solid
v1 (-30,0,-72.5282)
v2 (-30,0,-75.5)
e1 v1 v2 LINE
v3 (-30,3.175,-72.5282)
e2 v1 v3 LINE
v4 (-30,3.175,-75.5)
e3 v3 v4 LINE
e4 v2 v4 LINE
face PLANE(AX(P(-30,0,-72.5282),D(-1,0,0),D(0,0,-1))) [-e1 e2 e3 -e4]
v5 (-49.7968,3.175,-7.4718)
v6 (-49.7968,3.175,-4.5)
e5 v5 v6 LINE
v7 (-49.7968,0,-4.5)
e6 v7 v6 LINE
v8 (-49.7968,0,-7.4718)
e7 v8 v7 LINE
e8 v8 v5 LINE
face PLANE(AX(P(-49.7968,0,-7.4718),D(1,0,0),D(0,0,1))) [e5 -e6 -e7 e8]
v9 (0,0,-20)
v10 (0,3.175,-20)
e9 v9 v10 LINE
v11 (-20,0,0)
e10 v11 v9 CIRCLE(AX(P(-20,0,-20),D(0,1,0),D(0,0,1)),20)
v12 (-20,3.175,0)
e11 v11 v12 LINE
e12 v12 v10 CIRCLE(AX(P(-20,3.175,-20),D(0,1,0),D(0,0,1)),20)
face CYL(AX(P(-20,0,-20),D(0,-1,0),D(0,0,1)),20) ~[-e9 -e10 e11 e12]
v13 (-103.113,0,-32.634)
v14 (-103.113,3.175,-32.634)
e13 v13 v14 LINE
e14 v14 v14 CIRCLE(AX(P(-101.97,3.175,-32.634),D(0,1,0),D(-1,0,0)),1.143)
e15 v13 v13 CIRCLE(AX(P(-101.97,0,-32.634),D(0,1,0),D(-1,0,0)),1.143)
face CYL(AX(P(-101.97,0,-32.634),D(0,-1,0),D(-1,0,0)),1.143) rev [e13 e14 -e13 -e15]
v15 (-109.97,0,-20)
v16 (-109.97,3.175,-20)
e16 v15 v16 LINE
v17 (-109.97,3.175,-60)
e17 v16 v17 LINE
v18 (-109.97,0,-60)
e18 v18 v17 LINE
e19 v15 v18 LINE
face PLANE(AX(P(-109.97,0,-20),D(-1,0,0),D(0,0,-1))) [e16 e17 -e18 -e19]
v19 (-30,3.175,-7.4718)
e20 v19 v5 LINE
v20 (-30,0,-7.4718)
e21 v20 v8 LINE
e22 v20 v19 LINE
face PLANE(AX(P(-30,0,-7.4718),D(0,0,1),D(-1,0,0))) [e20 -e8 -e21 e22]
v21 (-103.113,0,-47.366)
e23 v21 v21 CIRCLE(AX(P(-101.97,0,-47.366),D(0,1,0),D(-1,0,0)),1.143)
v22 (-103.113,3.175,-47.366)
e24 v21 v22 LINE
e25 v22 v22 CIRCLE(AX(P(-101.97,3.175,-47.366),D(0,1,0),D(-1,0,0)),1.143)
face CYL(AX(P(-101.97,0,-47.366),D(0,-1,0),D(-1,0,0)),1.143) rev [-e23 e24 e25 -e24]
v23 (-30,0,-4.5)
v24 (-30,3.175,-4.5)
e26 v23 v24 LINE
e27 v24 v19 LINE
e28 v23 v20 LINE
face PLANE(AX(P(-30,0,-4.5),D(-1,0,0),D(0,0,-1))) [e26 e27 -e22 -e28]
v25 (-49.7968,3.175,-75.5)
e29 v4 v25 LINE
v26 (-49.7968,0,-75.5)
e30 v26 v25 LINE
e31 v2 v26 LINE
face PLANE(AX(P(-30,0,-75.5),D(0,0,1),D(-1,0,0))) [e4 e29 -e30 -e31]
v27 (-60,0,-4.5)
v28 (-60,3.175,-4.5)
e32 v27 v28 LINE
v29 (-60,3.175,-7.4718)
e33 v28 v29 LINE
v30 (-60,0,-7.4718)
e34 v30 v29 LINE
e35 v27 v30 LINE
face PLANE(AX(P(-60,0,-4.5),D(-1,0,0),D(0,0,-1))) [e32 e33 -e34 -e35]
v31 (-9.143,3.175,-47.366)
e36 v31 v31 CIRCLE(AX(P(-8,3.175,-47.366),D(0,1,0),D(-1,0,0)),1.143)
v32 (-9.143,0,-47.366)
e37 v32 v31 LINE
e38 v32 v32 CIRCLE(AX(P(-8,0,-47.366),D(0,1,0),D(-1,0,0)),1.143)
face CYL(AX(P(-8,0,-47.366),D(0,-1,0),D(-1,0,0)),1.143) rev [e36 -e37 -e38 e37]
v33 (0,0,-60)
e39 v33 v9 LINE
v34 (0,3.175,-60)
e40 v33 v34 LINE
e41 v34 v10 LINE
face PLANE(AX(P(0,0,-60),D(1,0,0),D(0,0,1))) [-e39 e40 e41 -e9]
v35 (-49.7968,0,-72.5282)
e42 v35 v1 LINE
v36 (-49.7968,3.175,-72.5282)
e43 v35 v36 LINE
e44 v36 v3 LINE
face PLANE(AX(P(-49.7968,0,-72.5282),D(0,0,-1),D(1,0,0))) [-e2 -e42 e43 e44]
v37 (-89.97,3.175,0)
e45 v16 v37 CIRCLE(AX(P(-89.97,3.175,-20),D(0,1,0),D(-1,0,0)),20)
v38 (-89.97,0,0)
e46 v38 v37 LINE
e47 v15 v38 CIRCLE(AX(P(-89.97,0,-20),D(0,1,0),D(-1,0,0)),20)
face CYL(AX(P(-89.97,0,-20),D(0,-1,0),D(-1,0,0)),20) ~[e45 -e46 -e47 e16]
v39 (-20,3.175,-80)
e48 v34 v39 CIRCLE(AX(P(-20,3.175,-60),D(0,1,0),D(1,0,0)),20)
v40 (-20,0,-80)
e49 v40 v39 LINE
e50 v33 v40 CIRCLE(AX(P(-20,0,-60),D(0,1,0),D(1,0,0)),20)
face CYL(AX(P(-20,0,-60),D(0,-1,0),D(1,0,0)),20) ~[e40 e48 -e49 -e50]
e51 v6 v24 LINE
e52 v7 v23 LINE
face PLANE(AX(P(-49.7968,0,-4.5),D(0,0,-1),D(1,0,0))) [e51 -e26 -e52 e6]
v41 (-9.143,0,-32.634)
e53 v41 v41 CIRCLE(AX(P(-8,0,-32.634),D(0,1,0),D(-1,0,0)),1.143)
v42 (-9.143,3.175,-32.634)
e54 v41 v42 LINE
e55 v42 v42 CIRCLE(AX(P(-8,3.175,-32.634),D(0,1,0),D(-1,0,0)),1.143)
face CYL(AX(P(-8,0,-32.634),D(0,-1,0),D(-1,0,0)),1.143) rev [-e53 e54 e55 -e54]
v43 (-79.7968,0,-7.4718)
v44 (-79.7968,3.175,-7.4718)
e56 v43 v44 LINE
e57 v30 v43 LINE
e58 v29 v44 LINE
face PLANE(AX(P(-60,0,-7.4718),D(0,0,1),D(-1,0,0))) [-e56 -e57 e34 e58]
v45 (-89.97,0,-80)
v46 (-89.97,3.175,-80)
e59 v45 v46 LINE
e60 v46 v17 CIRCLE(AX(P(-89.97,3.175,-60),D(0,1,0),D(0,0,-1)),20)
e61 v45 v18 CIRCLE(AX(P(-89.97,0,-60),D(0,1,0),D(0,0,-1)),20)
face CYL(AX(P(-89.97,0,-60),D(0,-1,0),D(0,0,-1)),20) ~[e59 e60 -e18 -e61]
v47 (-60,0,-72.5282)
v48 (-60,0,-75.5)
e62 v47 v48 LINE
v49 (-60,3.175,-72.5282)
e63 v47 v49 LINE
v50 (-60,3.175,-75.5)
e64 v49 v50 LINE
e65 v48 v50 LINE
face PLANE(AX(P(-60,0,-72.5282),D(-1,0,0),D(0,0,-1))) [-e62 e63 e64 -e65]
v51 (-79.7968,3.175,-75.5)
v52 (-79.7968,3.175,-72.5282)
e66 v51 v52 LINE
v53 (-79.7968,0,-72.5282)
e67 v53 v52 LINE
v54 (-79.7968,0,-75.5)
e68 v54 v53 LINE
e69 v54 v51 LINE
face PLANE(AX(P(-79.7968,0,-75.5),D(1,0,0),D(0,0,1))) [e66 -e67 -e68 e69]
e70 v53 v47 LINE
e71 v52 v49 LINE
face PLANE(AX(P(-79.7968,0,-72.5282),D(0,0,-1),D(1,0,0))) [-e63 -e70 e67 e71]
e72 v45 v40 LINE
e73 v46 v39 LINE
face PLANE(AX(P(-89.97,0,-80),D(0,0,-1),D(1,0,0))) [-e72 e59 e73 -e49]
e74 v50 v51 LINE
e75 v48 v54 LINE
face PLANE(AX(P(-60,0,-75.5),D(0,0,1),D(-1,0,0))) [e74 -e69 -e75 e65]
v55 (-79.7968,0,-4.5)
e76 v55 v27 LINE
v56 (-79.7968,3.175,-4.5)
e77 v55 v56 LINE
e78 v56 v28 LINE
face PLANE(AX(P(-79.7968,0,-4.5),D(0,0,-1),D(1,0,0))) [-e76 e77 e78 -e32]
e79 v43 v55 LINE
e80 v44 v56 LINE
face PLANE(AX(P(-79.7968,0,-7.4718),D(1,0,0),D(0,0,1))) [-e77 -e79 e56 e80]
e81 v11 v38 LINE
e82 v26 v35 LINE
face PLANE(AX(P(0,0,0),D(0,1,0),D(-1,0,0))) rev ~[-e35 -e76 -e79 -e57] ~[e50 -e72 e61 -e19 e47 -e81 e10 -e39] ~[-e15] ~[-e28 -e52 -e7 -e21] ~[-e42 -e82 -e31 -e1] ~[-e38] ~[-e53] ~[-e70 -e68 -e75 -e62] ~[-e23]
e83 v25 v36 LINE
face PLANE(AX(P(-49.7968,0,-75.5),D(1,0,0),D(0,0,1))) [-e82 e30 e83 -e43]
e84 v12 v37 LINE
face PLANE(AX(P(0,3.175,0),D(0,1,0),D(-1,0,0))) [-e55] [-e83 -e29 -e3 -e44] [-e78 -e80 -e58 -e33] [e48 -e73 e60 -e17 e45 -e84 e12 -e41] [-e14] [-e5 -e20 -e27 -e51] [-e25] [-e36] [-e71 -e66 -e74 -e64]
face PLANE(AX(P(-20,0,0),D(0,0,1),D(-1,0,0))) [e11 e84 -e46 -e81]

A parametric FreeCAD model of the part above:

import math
import FreeCAD as App
import Part
import Sketcher
Q = App.Units.Quantity


def add_polygon(sketch, points):
    """Adds a closed chain of lines whose ends are joined by coincident constraints."""
    first, n = sketch.GeometryCount, len(points)
    for a, b in zip(points, points[1:] + points[:1]):
        sketch.addGeometry(Part.LineSegment(App.Vector(*a, 0), App.Vector(*b, 0)), False)
    for i in range(n):
        sketch.addConstraint(Sketcher.Constraint("Coincident", first + i, 2, first + (i + 1) % n, 1))

doc = App.newDocument("Part")
params = doc.addObject("Spreadsheet::Sheet", "Params")
for row, (alias, value) in enumerate([
    ("sketch1_diameter", "0.09 in"),
    ("sketch1_height", "0.117 in"),
    ("pad1_length", "0.125 in"),
], start=1):
    params.set(f"A{row}", alias)
    params.set(f"B{row}", "=" + value)
    params.setAlias(f"B{row}", alias)

body = doc.addObject("PartDesign::Body", "Body")

# Sketch on XZ plane
sketch1 = doc.addObject("Sketcher::SketchObject", "Sketch")
body.addObject(sketch1)
sketch1.AttachmentSupport = (doc.XZ_Plane, [""])
sketch1.MapMode = "FlatFace"
sketch1.addGeometry(Part.LineSegment(App.Vector(-89.97, 0, 0), App.Vector(-20, 0, 0)), False)  # 0
sketch1.addGeometry(Part.ArcOfCircle(Part.Circle(App.Vector(-20, -20, 0), App.Vector(0, 0, 1), 20), math.radians(0), math.radians(90)), False)  # 1
sketch1.addGeometry(Part.LineSegment(App.Vector(0, -20, 0), App.Vector(0, -60, 0)), False)  # 2
sketch1.addGeometry(Part.ArcOfCircle(Part.Circle(App.Vector(-20, -60, 0), App.Vector(0, 0, 1), 20), math.radians(-90), math.radians(0)), False)  # 3
sketch1.addGeometry(Part.LineSegment(App.Vector(-20, -80, 0), App.Vector(-89.97, -80, 0)), False)  # 4
sketch1.addGeometry(Part.ArcOfCircle(Part.Circle(App.Vector(-89.97, -60, 0), App.Vector(0, 0, 1), 20), math.radians(180), math.radians(270)), False)  # 5
sketch1.addGeometry(Part.LineSegment(App.Vector(-109.97, -60, 0), App.Vector(-109.97, -20, 0)), False)  # 6
sketch1.addGeometry(Part.ArcOfCircle(Part.Circle(App.Vector(-89.97, -20, 0), App.Vector(0, 0, 1), 20), math.radians(90), math.radians(180)), False)  # 7
add_polygon(sketch1, [(-30, -72.5282), (-49.7968, -72.5282), (-49.7968, -75.5), (-30, -75.5)])  # lines 8-11
sketch1.addGeometry(Part.Circle(App.Vector(-8, -47.366, 0), App.Vector(0, 0, 1), 1.143), False)  # 12
add_polygon(sketch1, [(-60, -72.5282), (-79.7968, -72.5282), (-79.7968, -75.5), (-60, -75.5)])  # lines 13-16
sketch1.addGeometry(Part.Circle(App.Vector(-101.97, -47.366, 0), App.Vector(0, 0, 1), 1.143), False)  # 17
sketch1.addGeometry(Part.Circle(App.Vector(-8, -32.634, 0), App.Vector(0, 0, 1), 1.143), False)  # 18
add_polygon(sketch1, [(-30, -4.5), (-49.7968, -4.5), (-49.7968, -7.4718), (-30, -7.4718)])  # lines 19-22
sketch1.addGeometry(Part.Circle(App.Vector(-101.97, -32.634, 0), App.Vector(0, 0, 1), 1.143), False)  # 23
add_polygon(sketch1, [(-79.7968, -7.4718), (-60, -7.4718), (-60, -4.5), (-79.7968, -4.5)])  # lines 24-27
sketch1.addConstraint([
    Sketcher.Constraint("Tangent", 0, 2, 1, 2),
    Sketcher.Constraint("Tangent", 1, 1, 2, 1),
    Sketcher.Constraint("Tangent", 2, 2, 3, 2),
    Sketcher.Constraint("Tangent", 3, 1, 4, 1),
    Sketcher.Constraint("Tangent", 4, 2, 5, 2),
    Sketcher.Constraint("Tangent", 5, 1, 6, 1),
    Sketcher.Constraint("Tangent", 6, 2, 7, 2),
    Sketcher.Constraint("Tangent", 7, 1, 0, 1),
    Sketcher.Constraint("Horizontal", 0),
    Sketcher.Constraint("Vertical", 2),
    Sketcher.Constraint("Horizontal", 4),
    Sketcher.Constraint("Vertical", 6),
    Sketcher.Constraint("Horizontal", 8),
    Sketcher.Constraint("Vertical", 9),
    Sketcher.Constraint("Horizontal", 10),
    Sketcher.Constraint("Vertical", 11),
    Sketcher.Constraint("Horizontal", 13),
    Sketcher.Constraint("Vertical", 14),
    Sketcher.Constraint("Horizontal", 15),
    Sketcher.Constraint("Vertical", 16),
    Sketcher.Constraint("Horizontal", 19),
    Sketcher.Constraint("Vertical", 20),
    Sketcher.Constraint("Horizontal", 21),
    Sketcher.Constraint("Vertical", 22),
    Sketcher.Constraint("Horizontal", 24),
    Sketcher.Constraint("Vertical", 25),
    Sketcher.Constraint("Horizontal", 26),
    Sketcher.Constraint("Vertical", 27),
    Sketcher.Constraint("Equal", 1, 3),
    Sketcher.Constraint("Equal", 3, 5),
    Sketcher.Constraint("Equal", 5, 7),
    Sketcher.Constraint("Equal", 12, 17),
    Sketcher.Constraint("Equal", 17, 18),
    Sketcher.Constraint("Equal", 18, 23),
    Sketcher.Constraint("PointOnObject", 0, 2, -1),
    Sketcher.Constraint("PointOnObject", 1, 1, -2),
    Sketcher.Constraint("Horizontal", 12, 3, 17, 3),
    Sketcher.Constraint("Horizontal", 18, 3, 23, 3),
    Sketcher.Constraint("Horizontal", 11, 2, 13, 2),
    Sketcher.Constraint("Horizontal", 10, 2, 14, 2),
    Sketcher.Constraint("Horizontal", 21, 2, 24, 2),
    Sketcher.Constraint("Horizontal", 22, 2, 25, 2),
    Sketcher.Constraint("Vertical", 12, 3, 18, 3),
    Sketcher.Constraint("Vertical", 17, 3, 23, 3),
    Sketcher.Constraint("Vertical", 9, 2, 19, 2),
    Sketcher.Constraint("Vertical", 11, 2, 21, 2),
    Sketcher.Constraint("Vertical", 16, 2, 24, 2),
    Sketcher.Constraint("Vertical", 14, 2, 26, 2),
    Sketcher.Constraint("Equal", 10, 13),
    Sketcher.Constraint("Equal", 16, 20),
    Sketcher.Constraint("Diameter", 12, Q("0.09 in")),
    Sketcher.Constraint("Radius", 1, Q("0.7874 in")),
    Sketcher.Constraint("DistanceY", 9, 2, 9, 1, Q("0.117 in")),
    Sketcher.Constraint("DistanceY", 12, 3, 18, 3, Q("0.58 in")),
    Sketcher.Constraint("DistanceX", 8, 2, 8, 1, Q("0.7794 in")),
    Sketcher.Constraint("DistanceY", 18, 3, -1, 1, Q("1.2848 in")),
    Sketcher.Constraint("DistanceY", 3, 1, -1, 1, Q("3.1496 in")),
    Sketcher.Constraint("DistanceX", 10, 2, -1, 1, Q("1.1811 in")),
    Sketcher.Constraint("DistanceX", 13, 2, 8, 2, Q("1.1811 in")),
    Sketcher.Constraint("DistanceX", 12, 3, -1, 1, 8.0),
    Sketcher.Constraint("DistanceX", 5, 1, -1, 1, 109.97),
    Sketcher.Constraint("DistanceY", 19, 2, -1, 1, 4.5),
    Sketcher.Constraint("DistanceX", 5, 1, 17, 3, 8.0),
    Sketcher.Constraint("DistanceY", 3, 1, 9, 2, 4.5),
])
sketch1.setExpression("Constraints[66]", "Params.sketch1_diameter")
sketch1.setExpression("Constraints[68]", "Params.sketch1_height")
pad1 = doc.addObject("PartDesign::Pad", "Pad")
body.addObject(pad1)
pad1.Profile = sketch1
pad1.setExpression("Length", "Params.pad1_length")
pad1.Reversed = True

doc.recompute()
